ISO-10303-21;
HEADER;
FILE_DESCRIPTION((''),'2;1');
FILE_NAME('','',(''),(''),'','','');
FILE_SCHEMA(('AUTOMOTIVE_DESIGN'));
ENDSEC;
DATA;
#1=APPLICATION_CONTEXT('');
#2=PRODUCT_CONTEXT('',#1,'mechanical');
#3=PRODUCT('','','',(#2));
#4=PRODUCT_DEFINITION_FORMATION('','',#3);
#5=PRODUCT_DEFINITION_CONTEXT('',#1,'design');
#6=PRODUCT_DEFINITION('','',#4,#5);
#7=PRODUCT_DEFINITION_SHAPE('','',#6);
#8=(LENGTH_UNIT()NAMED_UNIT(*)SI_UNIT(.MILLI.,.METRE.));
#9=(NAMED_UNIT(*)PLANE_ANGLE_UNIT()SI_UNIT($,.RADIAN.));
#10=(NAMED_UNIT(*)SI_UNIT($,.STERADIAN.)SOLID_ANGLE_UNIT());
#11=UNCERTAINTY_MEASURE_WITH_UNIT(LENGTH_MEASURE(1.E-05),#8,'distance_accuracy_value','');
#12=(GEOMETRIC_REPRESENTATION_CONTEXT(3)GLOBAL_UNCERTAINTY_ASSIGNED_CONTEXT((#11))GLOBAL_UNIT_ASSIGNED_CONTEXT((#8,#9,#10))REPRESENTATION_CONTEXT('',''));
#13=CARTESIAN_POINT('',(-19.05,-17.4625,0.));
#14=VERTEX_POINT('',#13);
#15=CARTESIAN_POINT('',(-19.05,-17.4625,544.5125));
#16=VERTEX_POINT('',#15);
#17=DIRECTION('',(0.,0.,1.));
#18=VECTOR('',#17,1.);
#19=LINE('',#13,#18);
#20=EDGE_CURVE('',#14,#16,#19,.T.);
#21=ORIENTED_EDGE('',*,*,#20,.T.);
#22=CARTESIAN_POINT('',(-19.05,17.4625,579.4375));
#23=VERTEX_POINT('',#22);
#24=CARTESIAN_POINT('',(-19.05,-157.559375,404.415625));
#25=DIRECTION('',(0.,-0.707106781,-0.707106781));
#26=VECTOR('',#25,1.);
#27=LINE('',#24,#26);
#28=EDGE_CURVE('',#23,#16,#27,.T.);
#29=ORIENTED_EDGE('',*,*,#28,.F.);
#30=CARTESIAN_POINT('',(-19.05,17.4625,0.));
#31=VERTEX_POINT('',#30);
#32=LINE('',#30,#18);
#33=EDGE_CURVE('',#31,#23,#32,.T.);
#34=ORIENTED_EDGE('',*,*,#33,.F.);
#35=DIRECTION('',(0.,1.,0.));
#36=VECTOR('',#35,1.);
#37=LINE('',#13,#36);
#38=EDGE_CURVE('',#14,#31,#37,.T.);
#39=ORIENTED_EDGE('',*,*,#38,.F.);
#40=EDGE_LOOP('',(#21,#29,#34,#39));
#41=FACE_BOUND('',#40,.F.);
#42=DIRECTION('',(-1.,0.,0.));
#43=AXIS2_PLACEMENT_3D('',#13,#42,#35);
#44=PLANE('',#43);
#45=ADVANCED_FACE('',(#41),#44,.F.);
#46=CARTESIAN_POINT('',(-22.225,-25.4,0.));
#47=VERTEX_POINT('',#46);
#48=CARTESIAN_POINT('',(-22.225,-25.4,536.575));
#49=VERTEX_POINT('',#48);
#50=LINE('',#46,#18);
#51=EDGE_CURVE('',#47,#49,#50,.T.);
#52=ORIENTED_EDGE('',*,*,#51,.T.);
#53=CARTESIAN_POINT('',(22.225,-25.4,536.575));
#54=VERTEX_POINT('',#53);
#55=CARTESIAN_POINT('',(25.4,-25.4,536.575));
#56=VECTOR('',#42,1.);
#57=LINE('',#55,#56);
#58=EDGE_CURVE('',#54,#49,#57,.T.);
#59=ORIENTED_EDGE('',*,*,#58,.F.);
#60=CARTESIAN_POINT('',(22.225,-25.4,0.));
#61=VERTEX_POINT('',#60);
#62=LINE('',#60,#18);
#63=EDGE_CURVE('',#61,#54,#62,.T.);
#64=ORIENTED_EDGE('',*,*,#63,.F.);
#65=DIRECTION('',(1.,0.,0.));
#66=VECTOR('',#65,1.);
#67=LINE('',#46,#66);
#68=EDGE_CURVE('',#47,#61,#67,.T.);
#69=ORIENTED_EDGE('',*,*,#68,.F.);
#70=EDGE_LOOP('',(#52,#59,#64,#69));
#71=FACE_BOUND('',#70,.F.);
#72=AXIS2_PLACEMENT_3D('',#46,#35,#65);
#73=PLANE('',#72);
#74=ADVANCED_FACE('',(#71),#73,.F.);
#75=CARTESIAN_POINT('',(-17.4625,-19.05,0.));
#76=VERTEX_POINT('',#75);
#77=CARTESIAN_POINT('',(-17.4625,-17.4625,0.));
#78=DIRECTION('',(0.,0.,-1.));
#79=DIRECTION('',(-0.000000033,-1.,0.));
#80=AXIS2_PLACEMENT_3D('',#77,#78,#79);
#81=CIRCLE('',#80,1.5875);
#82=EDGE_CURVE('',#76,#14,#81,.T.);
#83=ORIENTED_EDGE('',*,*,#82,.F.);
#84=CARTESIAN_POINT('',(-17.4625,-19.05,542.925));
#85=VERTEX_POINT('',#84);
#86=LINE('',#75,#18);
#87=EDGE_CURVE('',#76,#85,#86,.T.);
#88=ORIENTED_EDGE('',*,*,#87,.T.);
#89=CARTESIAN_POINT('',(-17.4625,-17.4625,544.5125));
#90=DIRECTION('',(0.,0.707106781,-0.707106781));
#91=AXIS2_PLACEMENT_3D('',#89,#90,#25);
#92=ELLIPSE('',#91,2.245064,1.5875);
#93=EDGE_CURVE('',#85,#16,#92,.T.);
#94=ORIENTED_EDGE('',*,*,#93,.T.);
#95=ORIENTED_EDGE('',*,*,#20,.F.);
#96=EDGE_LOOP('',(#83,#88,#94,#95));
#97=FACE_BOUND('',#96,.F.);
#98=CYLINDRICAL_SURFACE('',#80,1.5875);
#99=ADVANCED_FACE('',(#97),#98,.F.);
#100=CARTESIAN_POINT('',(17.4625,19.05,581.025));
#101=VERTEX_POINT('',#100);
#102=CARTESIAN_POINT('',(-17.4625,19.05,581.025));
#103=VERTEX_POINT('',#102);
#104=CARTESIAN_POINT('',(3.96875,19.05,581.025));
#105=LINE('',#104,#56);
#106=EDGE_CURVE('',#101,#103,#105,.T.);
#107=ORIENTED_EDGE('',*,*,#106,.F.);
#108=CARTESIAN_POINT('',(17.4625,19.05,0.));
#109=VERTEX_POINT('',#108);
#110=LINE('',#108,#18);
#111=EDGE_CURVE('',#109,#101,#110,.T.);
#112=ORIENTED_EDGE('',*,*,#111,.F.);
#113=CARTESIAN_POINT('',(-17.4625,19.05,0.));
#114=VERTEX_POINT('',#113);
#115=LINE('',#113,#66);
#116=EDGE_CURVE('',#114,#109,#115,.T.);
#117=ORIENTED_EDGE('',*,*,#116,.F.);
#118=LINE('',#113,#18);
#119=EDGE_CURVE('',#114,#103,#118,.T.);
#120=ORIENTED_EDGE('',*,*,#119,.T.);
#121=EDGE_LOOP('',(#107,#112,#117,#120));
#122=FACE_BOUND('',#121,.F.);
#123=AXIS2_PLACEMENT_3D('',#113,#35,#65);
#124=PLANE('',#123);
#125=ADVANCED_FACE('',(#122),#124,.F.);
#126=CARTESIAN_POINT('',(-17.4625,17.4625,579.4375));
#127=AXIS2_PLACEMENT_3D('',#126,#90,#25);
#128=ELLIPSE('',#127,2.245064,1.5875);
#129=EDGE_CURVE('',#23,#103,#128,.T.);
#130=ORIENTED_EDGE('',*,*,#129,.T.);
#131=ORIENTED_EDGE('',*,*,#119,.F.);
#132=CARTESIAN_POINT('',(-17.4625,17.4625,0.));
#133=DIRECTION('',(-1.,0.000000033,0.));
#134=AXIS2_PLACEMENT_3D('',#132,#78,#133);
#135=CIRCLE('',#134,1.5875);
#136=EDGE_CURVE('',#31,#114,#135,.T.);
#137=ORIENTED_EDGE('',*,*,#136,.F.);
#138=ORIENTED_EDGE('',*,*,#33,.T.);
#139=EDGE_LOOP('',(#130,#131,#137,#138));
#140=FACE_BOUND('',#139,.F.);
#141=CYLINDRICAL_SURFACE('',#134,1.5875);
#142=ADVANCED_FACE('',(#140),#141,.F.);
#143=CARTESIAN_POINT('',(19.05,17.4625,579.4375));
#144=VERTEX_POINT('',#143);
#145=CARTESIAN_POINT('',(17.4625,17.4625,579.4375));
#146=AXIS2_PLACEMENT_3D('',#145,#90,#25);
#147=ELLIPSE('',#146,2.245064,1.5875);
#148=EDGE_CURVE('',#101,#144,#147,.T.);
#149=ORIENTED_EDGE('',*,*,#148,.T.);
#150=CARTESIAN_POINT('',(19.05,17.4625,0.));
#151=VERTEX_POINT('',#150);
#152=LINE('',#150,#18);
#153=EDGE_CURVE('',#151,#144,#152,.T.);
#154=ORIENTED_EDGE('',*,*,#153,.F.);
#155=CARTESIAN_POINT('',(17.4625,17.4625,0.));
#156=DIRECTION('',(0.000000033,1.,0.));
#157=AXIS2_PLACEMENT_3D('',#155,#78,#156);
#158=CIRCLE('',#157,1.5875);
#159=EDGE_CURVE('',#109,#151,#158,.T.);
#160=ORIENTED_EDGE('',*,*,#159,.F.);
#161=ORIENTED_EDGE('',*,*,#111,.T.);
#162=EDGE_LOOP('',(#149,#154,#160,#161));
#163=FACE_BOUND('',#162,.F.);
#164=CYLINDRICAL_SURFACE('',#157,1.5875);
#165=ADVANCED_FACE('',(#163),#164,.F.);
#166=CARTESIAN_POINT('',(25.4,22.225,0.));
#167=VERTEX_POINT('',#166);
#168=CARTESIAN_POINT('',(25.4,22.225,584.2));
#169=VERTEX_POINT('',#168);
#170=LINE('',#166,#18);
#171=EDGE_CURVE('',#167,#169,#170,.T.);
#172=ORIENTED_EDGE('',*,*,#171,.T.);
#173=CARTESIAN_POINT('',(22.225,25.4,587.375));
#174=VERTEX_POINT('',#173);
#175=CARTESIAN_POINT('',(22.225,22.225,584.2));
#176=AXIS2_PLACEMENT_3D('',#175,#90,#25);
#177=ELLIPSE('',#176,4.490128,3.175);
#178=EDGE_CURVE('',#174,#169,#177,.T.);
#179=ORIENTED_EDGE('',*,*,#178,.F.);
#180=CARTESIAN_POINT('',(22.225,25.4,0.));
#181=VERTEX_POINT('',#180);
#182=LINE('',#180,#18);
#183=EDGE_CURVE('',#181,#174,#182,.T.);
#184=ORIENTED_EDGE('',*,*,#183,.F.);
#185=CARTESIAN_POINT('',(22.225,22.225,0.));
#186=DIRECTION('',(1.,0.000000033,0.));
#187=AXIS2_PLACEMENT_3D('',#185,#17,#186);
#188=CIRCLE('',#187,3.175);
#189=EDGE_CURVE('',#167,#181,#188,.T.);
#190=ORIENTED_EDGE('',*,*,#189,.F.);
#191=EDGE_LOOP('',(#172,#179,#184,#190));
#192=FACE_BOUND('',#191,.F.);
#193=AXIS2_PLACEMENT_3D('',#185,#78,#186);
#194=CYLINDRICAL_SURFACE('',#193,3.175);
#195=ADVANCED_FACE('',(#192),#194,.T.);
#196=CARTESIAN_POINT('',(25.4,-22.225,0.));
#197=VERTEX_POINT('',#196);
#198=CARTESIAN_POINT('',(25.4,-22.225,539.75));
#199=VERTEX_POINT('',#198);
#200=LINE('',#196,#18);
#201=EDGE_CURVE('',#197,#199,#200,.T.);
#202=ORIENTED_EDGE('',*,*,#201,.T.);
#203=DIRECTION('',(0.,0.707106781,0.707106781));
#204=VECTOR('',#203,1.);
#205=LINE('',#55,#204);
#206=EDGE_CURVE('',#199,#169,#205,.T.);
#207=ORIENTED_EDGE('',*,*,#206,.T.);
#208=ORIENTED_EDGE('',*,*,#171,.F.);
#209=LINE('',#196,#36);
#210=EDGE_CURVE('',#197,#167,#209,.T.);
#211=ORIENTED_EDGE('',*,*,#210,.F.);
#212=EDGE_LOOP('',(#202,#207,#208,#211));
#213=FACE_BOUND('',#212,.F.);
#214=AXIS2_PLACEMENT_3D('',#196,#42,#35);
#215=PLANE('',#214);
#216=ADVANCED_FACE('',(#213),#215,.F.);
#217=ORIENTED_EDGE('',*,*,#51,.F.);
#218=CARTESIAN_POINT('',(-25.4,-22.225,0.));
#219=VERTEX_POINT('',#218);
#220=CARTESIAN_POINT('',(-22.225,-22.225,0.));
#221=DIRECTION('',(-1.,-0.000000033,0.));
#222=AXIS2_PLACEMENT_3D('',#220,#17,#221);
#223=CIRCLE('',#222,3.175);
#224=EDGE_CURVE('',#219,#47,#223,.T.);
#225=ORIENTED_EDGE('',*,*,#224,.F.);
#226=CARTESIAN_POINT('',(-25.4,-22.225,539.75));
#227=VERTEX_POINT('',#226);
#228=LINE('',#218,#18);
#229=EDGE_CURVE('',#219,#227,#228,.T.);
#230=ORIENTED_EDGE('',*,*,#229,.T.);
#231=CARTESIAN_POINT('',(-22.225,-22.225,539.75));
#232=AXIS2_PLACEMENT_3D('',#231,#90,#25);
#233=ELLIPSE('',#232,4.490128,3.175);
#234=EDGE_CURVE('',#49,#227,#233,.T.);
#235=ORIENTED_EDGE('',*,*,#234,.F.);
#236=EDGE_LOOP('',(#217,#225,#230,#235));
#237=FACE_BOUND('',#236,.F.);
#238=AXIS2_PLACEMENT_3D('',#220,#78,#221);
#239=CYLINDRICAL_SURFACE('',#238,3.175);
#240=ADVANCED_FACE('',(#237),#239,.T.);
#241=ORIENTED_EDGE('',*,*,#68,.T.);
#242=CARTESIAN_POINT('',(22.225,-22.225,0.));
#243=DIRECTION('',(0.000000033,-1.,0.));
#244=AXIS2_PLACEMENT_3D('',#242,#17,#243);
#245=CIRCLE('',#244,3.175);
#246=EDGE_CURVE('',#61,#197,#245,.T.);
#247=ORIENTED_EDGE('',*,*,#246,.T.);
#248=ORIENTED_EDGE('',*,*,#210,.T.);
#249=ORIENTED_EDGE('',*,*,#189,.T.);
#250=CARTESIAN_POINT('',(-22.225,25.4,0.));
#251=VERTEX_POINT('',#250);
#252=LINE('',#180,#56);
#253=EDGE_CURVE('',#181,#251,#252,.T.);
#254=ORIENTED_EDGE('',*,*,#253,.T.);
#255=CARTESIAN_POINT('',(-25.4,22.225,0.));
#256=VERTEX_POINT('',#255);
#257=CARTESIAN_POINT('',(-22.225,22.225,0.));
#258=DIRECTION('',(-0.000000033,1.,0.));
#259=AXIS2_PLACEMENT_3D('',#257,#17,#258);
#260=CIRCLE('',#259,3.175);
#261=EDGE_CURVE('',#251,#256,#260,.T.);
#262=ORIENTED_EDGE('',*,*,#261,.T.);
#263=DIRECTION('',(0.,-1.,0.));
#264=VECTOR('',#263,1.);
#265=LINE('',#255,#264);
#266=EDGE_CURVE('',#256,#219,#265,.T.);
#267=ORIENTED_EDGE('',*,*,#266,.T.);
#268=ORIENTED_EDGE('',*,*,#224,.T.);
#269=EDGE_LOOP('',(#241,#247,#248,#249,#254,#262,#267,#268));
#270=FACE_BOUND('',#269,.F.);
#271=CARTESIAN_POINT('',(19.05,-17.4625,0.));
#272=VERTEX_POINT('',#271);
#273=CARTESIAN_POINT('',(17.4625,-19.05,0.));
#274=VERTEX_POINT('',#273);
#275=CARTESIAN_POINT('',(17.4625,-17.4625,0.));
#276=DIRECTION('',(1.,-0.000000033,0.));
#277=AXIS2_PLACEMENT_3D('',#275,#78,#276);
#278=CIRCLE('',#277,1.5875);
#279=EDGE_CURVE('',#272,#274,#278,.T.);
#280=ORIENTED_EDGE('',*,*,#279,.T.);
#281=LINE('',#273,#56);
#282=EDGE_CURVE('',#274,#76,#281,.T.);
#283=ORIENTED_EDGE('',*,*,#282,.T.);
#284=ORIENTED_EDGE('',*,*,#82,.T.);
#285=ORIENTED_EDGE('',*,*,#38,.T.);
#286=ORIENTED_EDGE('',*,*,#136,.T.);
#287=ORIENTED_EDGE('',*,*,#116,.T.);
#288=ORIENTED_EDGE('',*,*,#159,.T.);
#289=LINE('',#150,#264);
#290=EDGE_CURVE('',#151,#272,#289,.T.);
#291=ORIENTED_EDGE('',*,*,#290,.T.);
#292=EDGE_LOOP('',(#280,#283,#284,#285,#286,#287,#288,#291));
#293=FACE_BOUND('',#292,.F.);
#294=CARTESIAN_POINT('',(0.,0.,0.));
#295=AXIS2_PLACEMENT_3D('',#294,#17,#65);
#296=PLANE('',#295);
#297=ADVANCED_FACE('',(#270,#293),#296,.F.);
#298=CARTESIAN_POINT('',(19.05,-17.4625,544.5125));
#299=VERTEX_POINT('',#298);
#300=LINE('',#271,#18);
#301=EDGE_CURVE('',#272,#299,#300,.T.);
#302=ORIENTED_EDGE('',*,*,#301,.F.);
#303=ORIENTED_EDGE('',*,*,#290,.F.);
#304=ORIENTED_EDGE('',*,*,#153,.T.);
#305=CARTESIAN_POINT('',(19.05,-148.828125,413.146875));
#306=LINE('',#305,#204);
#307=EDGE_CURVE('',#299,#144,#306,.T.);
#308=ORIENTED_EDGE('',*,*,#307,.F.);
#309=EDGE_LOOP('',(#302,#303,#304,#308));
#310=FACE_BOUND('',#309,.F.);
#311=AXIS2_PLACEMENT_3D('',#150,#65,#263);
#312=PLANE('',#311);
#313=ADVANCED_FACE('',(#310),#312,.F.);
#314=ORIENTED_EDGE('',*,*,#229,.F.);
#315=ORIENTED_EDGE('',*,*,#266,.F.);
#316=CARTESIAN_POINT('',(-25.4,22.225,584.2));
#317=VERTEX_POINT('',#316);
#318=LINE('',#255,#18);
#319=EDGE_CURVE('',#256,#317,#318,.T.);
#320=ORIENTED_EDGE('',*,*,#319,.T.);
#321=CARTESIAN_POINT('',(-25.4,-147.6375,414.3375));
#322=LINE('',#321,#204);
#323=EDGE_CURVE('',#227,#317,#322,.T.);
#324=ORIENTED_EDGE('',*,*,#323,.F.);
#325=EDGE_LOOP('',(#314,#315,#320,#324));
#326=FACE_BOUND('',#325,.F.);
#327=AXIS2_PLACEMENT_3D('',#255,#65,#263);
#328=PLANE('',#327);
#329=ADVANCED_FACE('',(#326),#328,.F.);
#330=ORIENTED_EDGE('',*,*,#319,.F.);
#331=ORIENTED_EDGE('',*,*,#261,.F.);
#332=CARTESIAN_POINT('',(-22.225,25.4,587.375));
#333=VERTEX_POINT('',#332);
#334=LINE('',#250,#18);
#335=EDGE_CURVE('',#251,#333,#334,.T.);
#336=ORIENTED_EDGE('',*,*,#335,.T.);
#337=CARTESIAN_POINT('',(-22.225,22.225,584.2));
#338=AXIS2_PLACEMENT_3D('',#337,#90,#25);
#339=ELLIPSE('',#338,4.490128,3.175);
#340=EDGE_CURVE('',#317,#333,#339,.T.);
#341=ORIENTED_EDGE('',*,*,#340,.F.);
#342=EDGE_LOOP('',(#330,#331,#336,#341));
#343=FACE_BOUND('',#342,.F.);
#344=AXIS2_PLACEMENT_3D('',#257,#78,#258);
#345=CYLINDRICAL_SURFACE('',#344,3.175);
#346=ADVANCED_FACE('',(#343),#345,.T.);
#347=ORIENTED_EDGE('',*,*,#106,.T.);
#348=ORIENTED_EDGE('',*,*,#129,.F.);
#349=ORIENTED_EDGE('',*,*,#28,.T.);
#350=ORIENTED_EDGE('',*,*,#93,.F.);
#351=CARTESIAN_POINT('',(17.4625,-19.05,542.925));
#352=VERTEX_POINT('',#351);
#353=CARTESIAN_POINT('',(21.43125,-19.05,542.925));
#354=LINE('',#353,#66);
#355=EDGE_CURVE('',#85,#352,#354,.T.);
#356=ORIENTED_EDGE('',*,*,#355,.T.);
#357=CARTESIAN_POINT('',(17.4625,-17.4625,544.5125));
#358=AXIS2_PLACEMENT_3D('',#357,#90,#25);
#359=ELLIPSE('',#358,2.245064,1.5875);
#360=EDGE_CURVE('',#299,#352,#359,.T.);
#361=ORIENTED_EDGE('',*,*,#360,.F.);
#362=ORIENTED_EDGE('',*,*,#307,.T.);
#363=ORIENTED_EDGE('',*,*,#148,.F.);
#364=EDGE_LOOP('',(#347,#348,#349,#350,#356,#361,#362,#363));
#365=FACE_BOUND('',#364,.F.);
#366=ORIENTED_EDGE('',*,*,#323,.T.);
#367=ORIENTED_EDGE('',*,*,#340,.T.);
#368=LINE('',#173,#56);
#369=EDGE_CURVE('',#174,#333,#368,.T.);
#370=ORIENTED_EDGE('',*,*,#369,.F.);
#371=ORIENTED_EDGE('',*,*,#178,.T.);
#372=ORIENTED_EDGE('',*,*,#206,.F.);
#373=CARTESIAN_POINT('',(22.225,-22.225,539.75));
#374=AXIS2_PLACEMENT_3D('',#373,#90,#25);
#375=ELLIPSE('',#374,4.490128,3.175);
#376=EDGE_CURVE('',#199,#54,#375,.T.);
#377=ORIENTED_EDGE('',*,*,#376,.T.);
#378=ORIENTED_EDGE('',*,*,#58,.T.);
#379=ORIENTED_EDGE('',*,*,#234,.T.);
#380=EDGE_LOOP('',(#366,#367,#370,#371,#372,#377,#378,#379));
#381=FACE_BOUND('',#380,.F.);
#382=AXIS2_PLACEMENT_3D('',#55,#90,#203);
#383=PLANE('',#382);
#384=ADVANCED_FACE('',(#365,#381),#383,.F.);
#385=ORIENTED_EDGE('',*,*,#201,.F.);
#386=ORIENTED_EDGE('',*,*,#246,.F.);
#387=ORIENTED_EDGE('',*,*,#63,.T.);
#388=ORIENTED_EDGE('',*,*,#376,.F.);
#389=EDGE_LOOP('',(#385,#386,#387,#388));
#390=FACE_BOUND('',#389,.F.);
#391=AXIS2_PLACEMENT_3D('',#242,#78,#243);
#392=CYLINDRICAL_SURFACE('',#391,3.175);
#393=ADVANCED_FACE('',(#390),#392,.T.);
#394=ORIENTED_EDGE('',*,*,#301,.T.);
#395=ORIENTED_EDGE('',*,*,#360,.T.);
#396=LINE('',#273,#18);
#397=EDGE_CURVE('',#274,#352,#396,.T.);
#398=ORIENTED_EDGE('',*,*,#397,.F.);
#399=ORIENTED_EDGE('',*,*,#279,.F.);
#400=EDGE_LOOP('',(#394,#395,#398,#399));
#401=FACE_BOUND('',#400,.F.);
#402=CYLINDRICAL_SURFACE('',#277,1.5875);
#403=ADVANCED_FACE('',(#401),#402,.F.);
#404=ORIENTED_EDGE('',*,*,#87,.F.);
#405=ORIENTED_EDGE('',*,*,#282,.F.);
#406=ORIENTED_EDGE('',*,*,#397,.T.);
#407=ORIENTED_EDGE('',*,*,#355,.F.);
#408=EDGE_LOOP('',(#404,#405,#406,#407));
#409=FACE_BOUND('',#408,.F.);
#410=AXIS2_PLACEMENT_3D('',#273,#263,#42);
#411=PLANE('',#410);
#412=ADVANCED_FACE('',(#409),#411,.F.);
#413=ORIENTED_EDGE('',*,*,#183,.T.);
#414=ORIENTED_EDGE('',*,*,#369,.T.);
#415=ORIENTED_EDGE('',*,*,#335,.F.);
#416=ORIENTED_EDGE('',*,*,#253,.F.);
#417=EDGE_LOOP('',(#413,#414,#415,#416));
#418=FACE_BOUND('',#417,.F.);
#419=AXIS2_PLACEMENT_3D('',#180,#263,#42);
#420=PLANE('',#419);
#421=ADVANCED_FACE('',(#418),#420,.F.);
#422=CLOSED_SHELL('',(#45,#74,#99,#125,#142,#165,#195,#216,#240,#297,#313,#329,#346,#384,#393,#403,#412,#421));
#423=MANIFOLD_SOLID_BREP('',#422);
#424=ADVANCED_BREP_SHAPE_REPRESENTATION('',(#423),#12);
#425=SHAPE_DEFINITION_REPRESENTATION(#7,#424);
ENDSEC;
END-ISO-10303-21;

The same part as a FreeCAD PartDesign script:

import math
import FreeCAD as App
import Part
import Sketcher
Q = App.Units.Quantity


def add_polygon(sketch, points):
    """Adds a closed chain of lines whose ends are joined by coincident constraints."""
    first, n = sketch.GeometryCount, len(points)
    for a, b in zip(points, points[1:] + points[:1]):
        sketch.addGeometry(Part.LineSegment(App.Vector(*a, 0), App.Vector(*b, 0)), False)
    for i in range(n):
        sketch.addConstraint(Sketcher.Constraint("Coincident", first + i, 2, first + (i + 1) % n, 1))

doc = App.newDocument("Part")
params = doc.addObject("Spreadsheet::Sheet", "Params")
for row, (alias, value) in enumerate([
    ("sketch1_radius", "0.125 in"),
    ("sketch1_radius2", "0.0625 in"),
    ("sketch1_width", "1.375 in"),
    ("pad1_length", "23.125 in"),
    ("sketch2_width", "2 in"),
], start=1):
    params.set(f"A{row}", alias)
    params.set(f"B{row}", "=" + value)
    params.setAlias(f"B{row}", alias)

body = doc.addObject("PartDesign::Body", "Body")

sketch1 = body.newObject("Sketcher::SketchObject", "Sketch")
sketch1.AttachmentSupport = (doc.getObject("XY_Plane"), [""])
sketch1.MapMode = "FlatFace"
sketch1.addGeometry(Part.LineSegment(App.Vector(22.2, 25.4, 0), App.Vector(-22.2, 25.4, 0)), False)
sketch1.addGeometry(Part.ArcOfCircle(Part.Circle(App.Vector(-22.2, 22.2, 0), App.Vector(0, 0, 1), 3.2), math.radians(90), math.radians(180)), False)
sketch1.addGeometry(Part.LineSegment(App.Vector(-25.4, 22.2, 0), App.Vector(-25.4, -22.2, 0)), False)
sketch1.addGeometry(Part.ArcOfCircle(Part.Circle(App.Vector(-22.2, -22.2, 0), App.Vector(0, 0, 1), 3.2), math.radians(-180), math.radians(-90)), False)
sketch1.addGeometry(Part.LineSegment(App.Vector(-22.2, -25.4, 0), App.Vector(22.2, -25.4, 0)), False)
sketch1.addGeometry(Part.ArcOfCircle(Part.Circle(App.Vector(22.2, -22.2, 0), App.Vector(0, 0, 1), 3.2), math.radians(-90), math.radians(0)), False)
sketch1.addGeometry(Part.LineSegment(App.Vector(25.4, -22.2, 0), App.Vector(25.4, 22.2, 0)), False)
sketch1.addGeometry(Part.ArcOfCircle(Part.Circle(App.Vector(22.2, 22.2, 0), App.Vector(0, 0, 1), 3.2), math.radians(0), math.radians(90)), False)
sketch1.addGeometry(Part.LineSegment(App.Vector(-19.1, -17.5, 0), App.Vector(-19.1, 17.5, 0)), False)
sketch1.addGeometry(Part.ArcOfCircle(Part.Circle(App.Vector(-17.5, 17.5, 0), App.Vector(0, 0, 1), 1.6), math.radians(90), math.radians(180)), False)
sketch1.addGeometry(Part.LineSegment(App.Vector(-17.5, 19.1, 0), App.Vector(17.5, 19.1, 0)), False)
sketch1.addGeometry(Part.ArcOfCircle(Part.Circle(App.Vector(17.5, 17.5, 0), App.Vector(0, 0, 1), 1.6), math.radians(0), math.radians(90)), False)
sketch1.addGeometry(Part.LineSegment(App.Vector(19.1, 17.5, 0), App.Vector(19.1, -17.5, 0)), False)
sketch1.addGeometry(Part.ArcOfCircle(Part.Circle(App.Vector(17.5, -17.5, 0), App.Vector(0, 0, 1), 1.6), math.radians(-90), math.radians(0)), False)
sketch1.addGeometry(Part.LineSegment(App.Vector(17.5, -19.1, 0), App.Vector(-17.5, -19.1, 0)), False)
sketch1.addGeometry(Part.ArcOfCircle(Part.Circle(App.Vector(-17.5, -17.5, 0), App.Vector(0, 0, 1), 1.6), math.radians(-180), math.radians(-90)), False)
sketch1.addConstraint(Sketcher.Constraint("Tangent", 0, 2, 1, 1))
sketch1.addConstraint(Sketcher.Constraint("Tangent", 1, 2, 2, 1))
sketch1.addConstraint(Sketcher.Constraint("Tangent", 2, 2, 3, 1))
sketch1.addConstraint(Sketcher.Constraint("Tangent", 3, 2, 4, 1))
sketch1.addConstraint(Sketcher.Constraint("Tangent", 4, 2, 5, 1))
sketch1.addConstraint(Sketcher.Constraint("Tangent", 5, 2, 6, 1))
sketch1.addConstraint(Sketcher.Constraint("Tangent", 6, 2, 7, 1))
sketch1.addConstraint(Sketcher.Constraint("Tangent", 7, 2, 0, 1))
sketch1.addConstraint(Sketcher.Constraint("Tangent", 8, 2, 9, 2))
sketch1.addConstraint(Sketcher.Constraint("Tangent", 9, 1, 10, 1))
sketch1.addConstraint(Sketcher.Constraint("Tangent", 10, 2, 11, 2))
sketch1.addConstraint(Sketcher.Constraint("Tangent", 11, 1, 12, 1))
sketch1.addConstraint(Sketcher.Constraint("Tangent", 12, 2, 13, 2))
sketch1.addConstraint(Sketcher.Constraint("Tangent", 13, 1, 14, 1))
sketch1.addConstraint(Sketcher.Constraint("Tangent", 14, 2, 15, 2))
sketch1.addConstraint(Sketcher.Constraint("Tangent", 15, 1, 8, 1))
sketch1.addConstraint(Sketcher.Constraint("Horizontal", 0))
sketch1.addConstraint(Sketcher.Constraint("Vertical", 2))
sketch1.addConstraint(Sketcher.Constraint("Horizontal", 4))
sketch1.addConstraint(Sketcher.Constraint("Vertical", 6))
sketch1.addConstraint(Sketcher.Constraint("Vertical", 8))
sketch1.addConstraint(Sketcher.Constraint("Horizontal", 10))
sketch1.addConstraint(Sketcher.Constraint("Vertical", 12))
sketch1.addConstraint(Sketcher.Constraint("Horizontal", 14))
sketch1.addConstraint(Sketcher.Constraint("Equal", 1, 3))
sketch1.addConstraint(Sketcher.Constraint("Equal", 3, 5))
sketch1.addConstraint(Sketcher.Constraint("Equal", 5, 7))
sketch1.addConstraint(Sketcher.Constraint("Equal", 9, 11))
sketch1.addConstraint(Sketcher.Constraint("Equal", 11, 13))
sketch1.addConstraint(Sketcher.Constraint("Equal", 13, 15))
sketch1.addConstraint(Sketcher.Constraint("Symmetric", 1, 3, 5, 3, -1, 1))
sketch1.addConstraint(Sketcher.Constraint("Symmetric", 9, 3, 13, 3, -1, 1))
sketch1.addConstraint(Sketcher.Constraint("Equal", 4, 2))
sketch1.addConstraint(Sketcher.Constraint("Equal", 14, 8))
sketch1.addConstraint(Sketcher.Constraint("DistanceY", -1, 1, 0, 2, Q("1 in")))
sketch1.addConstraint(Sketcher.Constraint("Radius", 1, Q("0.125 in")))
sketch1.addConstraint(Sketcher.Constraint("Radius", 9, Q("0.0625 in")))
sketch1.addConstraint(Sketcher.Constraint("DistanceX", 10, 1, 10, 2, Q("1.375 in")))
sketch1.setExpression("Constraints[35]", "Params.sketch1_radius")
sketch1.setExpression("Constraints[36]", "Params.sketch1_radius2")
sketch1.setExpression("Constraints[37]", "Params.sketch1_width")
pad1 = body.newObject("PartDesign::Pad", "Pad")
pad1.Profile = sketch1
pad1.setExpression("Length", "Params.pad1_length")

sketch2 = body.newObject("Sketcher::SketchObject", "Sketch001")
sketch2.AttachmentSupport = (doc.getObject("YZ_Plane"), [""])
sketch2.MapMode = "FlatFace"
sketch2.AttachmentOffset = App.Placement(App.Vector(0, 0, 1 * 25.4), App.Rotation())
add_polygon(sketch2, [(-25, 537), (25, 587), (-25, 587)])
sketch2.addConstraint(Sketcher.Constraint("Horizontal", 1))
sketch2.addConstraint(Sketcher.Constraint("Vertical", 2))
sketch2.addConstraint(Sketcher.Constraint("Equal", 1, 2))
sketch2.addConstraint(Sketcher.Constraint("DistanceX", 1, 2, 1, 1, Q("2 in")))
sketch2.addConstraint(Sketcher.Constraint("DistanceX", -1, 1, 0, 2, Q("1 in")))
sketch2.addConstraint(Sketcher.Constraint("DistanceY", -1, 1, 0, 2, Q("23.125 in")))
sketch2.setExpression("Constraints[6]", "Params.sketch2_width")
pocket1 = body.newObject("PartDesign::Pocket", "Pocket")
pocket1.Profile = sketch2
pocket1.Type = "ThroughAll"

doc.recompute()
